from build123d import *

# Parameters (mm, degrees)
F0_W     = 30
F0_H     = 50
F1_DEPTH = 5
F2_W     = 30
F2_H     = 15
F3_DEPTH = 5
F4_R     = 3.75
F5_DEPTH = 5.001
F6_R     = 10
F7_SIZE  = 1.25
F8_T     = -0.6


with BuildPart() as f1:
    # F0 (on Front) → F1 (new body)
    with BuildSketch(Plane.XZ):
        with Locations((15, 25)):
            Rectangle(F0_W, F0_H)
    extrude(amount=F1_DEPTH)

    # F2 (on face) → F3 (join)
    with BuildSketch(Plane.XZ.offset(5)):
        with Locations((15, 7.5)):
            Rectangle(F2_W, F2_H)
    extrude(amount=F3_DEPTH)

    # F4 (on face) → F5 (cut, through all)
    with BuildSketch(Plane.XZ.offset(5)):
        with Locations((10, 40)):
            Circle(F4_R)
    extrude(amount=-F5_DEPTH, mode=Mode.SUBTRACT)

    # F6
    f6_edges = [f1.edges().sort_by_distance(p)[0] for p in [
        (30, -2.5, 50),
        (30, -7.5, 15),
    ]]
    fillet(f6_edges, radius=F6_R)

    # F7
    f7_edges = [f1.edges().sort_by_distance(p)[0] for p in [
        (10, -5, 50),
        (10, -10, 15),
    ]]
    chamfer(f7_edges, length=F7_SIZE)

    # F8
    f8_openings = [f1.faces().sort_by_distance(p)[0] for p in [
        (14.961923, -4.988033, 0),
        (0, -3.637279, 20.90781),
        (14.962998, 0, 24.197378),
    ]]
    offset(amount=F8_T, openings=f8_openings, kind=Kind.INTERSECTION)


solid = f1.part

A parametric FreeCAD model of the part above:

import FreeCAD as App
import Part
import Sketcher
from FreeCAD import Vector


def edges_at(feature, points):
    """Names of the edges that pass closest to the given points."""
    edges = feature.Shape.Edges
    near = lambda p: min(range(len(edges)), key=lambda i: edges[i].distToShape(Part.Vertex(*p))[0])
    return sorted({f"Edge{near(p) + 1}" for p in points})


def faces_at(feature, points):
    """Names of the faces that lie closest to the given points."""
    faces = feature.Shape.Faces
    near = lambda p: min(range(len(faces)), key=lambda i: faces[i].distToShape(Part.Vertex(*p))[0])
    return sorted({f"Face{near(p) + 1}" for p in points})


def add_polygon(sketch, points):
    """Adds a closed chain of lines whose ends are joined by coincident constraints."""
    first, n = sketch.GeometryCount, len(points)
    for a, b in zip(points, points[1:] + points[:1]):
        sketch.addGeometry(Part.LineSegment(App.Vector(*a, 0), App.Vector(*b, 0)), False)
    for i in range(n):
        sketch.addConstraint(Sketcher.Constraint("Coincident", first + i, 2, first + (i + 1) % n, 1))

doc = App.newDocument("Part")
body = doc.addObject("PartDesign::Body", "Body")

# Sketch on XZ plane
sketch1 = body.newObject("Sketcher::SketchObject", "Sketch")
sketch1.AttachmentSupport = (doc.getObject("XZ_Plane"), [""])
sketch1.MapMode = "FlatFace"
add_polygon(sketch1, [(0, 50), (0, 0), (30, 0), (30, 50)])  # lines 0-3
sketch1.addConstraint([
    Sketcher.Constraint("Vertical", 0),
    Sketcher.Constraint("Horizontal", 1),
    Sketcher.Constraint("Vertical", 2),
    Sketcher.Constraint("Horizontal", 3),
    Sketcher.Constraint("Coincident", 0, 2, -1, 1),
    Sketcher.Constraint("DistanceX", 1, 1, 1, 2, 30.0),
    Sketcher.Constraint("DistanceY", 0, 2, 0, 1, 50.0),
])
pad1 = body.newObject("PartDesign::Pad", "Pad")
pad1.Profile = sketch1
pad1.Length = 5

# Sketch on XZ plane
sketch2 = body.newObject("Sketcher::SketchObject", "Sketch001")
sketch2.AttachmentSupport = (doc.getObject("XZ_Plane"), [""])
sketch2.MapMode = "FlatFace"
sketch2.AttachmentOffset = App.Placement(Vector(0, 0, 5), App.Rotation())
add_polygon(sketch2, [(0, 15), (0, 0), (30, 0), (30, 15)])  # lines 0-3
sketch2.addConstraint([
    Sketcher.Constraint("Vertical", 0),
    Sketcher.Constraint("Horizontal", 1),
    Sketcher.Constraint("Vertical", 2),
    Sketcher.Constraint("Horizontal", 3),
    Sketcher.Constraint("Coincident", 0, 2, -1, 1),
    Sketcher.Constraint("DistanceX", 1, 1, 1, 2, 30.0),
    Sketcher.Constraint("DistanceY", 0, 2, 0, 1, 15.0),
])
pad2 = body.newObject("PartDesign::Pad", "Pad001")
pad2.Profile = sketch2
pad2.Length = 5

# Sketch on XZ plane
sketch3 = body.newObject("Sketcher::SketchObject", "Sketch002")
sketch3.AttachmentSupport = (doc.getObject("XZ_Plane"), [""])
sketch3.MapMode = "FlatFace"
sketch3.AttachmentOffset = App.Placement(Vector(0, 0, 5), App.Rotation())
sketch3.addGeometry(Part.Circle(Vector(10, 40, 0), Vector(0, 0, 1), 3.8), False)
sketch3.addConstraint([
    Sketcher.Constraint("Diameter", 0, 7.5),
    Sketcher.Constraint("DistanceX", -1, 1, 0, 3, 10.0),
    Sketcher.Constraint("DistanceY", -1, 1, 0, 3, 40.0),
])
pocket1 = body.newObject("PartDesign::Pocket", "Pocket")
pocket1.Profile = sketch3
pocket1.Type = "ThroughAll"
doc.recompute()

fillet = body.newObject("PartDesign::Fillet", "Fillet")
fillet.Base = (pocket1, edges_at(pocket1, [(30, -2.5, 50), (30, -7.5, 15)]))
fillet.Radius = 10
doc.recompute()

chamfer = body.newObject("PartDesign::Chamfer", "Chamfer")
chamfer.Base = (fillet, edges_at(fillet, [(10, -5, 50), (10, -10, 15)]))
chamfer.Size = 1.25
doc.recompute()

thickness = body.newObject("PartDesign::Thickness", "Thickness")
thickness.Base = (chamfer, faces_at(chamfer, [(15, -5, 0), (0, -5, 25), (15, 0, 25)]))
thickness.Value = 0.6
thickness.Reversed = True
thickness.Join = "Intersection"

doc.recompute()
